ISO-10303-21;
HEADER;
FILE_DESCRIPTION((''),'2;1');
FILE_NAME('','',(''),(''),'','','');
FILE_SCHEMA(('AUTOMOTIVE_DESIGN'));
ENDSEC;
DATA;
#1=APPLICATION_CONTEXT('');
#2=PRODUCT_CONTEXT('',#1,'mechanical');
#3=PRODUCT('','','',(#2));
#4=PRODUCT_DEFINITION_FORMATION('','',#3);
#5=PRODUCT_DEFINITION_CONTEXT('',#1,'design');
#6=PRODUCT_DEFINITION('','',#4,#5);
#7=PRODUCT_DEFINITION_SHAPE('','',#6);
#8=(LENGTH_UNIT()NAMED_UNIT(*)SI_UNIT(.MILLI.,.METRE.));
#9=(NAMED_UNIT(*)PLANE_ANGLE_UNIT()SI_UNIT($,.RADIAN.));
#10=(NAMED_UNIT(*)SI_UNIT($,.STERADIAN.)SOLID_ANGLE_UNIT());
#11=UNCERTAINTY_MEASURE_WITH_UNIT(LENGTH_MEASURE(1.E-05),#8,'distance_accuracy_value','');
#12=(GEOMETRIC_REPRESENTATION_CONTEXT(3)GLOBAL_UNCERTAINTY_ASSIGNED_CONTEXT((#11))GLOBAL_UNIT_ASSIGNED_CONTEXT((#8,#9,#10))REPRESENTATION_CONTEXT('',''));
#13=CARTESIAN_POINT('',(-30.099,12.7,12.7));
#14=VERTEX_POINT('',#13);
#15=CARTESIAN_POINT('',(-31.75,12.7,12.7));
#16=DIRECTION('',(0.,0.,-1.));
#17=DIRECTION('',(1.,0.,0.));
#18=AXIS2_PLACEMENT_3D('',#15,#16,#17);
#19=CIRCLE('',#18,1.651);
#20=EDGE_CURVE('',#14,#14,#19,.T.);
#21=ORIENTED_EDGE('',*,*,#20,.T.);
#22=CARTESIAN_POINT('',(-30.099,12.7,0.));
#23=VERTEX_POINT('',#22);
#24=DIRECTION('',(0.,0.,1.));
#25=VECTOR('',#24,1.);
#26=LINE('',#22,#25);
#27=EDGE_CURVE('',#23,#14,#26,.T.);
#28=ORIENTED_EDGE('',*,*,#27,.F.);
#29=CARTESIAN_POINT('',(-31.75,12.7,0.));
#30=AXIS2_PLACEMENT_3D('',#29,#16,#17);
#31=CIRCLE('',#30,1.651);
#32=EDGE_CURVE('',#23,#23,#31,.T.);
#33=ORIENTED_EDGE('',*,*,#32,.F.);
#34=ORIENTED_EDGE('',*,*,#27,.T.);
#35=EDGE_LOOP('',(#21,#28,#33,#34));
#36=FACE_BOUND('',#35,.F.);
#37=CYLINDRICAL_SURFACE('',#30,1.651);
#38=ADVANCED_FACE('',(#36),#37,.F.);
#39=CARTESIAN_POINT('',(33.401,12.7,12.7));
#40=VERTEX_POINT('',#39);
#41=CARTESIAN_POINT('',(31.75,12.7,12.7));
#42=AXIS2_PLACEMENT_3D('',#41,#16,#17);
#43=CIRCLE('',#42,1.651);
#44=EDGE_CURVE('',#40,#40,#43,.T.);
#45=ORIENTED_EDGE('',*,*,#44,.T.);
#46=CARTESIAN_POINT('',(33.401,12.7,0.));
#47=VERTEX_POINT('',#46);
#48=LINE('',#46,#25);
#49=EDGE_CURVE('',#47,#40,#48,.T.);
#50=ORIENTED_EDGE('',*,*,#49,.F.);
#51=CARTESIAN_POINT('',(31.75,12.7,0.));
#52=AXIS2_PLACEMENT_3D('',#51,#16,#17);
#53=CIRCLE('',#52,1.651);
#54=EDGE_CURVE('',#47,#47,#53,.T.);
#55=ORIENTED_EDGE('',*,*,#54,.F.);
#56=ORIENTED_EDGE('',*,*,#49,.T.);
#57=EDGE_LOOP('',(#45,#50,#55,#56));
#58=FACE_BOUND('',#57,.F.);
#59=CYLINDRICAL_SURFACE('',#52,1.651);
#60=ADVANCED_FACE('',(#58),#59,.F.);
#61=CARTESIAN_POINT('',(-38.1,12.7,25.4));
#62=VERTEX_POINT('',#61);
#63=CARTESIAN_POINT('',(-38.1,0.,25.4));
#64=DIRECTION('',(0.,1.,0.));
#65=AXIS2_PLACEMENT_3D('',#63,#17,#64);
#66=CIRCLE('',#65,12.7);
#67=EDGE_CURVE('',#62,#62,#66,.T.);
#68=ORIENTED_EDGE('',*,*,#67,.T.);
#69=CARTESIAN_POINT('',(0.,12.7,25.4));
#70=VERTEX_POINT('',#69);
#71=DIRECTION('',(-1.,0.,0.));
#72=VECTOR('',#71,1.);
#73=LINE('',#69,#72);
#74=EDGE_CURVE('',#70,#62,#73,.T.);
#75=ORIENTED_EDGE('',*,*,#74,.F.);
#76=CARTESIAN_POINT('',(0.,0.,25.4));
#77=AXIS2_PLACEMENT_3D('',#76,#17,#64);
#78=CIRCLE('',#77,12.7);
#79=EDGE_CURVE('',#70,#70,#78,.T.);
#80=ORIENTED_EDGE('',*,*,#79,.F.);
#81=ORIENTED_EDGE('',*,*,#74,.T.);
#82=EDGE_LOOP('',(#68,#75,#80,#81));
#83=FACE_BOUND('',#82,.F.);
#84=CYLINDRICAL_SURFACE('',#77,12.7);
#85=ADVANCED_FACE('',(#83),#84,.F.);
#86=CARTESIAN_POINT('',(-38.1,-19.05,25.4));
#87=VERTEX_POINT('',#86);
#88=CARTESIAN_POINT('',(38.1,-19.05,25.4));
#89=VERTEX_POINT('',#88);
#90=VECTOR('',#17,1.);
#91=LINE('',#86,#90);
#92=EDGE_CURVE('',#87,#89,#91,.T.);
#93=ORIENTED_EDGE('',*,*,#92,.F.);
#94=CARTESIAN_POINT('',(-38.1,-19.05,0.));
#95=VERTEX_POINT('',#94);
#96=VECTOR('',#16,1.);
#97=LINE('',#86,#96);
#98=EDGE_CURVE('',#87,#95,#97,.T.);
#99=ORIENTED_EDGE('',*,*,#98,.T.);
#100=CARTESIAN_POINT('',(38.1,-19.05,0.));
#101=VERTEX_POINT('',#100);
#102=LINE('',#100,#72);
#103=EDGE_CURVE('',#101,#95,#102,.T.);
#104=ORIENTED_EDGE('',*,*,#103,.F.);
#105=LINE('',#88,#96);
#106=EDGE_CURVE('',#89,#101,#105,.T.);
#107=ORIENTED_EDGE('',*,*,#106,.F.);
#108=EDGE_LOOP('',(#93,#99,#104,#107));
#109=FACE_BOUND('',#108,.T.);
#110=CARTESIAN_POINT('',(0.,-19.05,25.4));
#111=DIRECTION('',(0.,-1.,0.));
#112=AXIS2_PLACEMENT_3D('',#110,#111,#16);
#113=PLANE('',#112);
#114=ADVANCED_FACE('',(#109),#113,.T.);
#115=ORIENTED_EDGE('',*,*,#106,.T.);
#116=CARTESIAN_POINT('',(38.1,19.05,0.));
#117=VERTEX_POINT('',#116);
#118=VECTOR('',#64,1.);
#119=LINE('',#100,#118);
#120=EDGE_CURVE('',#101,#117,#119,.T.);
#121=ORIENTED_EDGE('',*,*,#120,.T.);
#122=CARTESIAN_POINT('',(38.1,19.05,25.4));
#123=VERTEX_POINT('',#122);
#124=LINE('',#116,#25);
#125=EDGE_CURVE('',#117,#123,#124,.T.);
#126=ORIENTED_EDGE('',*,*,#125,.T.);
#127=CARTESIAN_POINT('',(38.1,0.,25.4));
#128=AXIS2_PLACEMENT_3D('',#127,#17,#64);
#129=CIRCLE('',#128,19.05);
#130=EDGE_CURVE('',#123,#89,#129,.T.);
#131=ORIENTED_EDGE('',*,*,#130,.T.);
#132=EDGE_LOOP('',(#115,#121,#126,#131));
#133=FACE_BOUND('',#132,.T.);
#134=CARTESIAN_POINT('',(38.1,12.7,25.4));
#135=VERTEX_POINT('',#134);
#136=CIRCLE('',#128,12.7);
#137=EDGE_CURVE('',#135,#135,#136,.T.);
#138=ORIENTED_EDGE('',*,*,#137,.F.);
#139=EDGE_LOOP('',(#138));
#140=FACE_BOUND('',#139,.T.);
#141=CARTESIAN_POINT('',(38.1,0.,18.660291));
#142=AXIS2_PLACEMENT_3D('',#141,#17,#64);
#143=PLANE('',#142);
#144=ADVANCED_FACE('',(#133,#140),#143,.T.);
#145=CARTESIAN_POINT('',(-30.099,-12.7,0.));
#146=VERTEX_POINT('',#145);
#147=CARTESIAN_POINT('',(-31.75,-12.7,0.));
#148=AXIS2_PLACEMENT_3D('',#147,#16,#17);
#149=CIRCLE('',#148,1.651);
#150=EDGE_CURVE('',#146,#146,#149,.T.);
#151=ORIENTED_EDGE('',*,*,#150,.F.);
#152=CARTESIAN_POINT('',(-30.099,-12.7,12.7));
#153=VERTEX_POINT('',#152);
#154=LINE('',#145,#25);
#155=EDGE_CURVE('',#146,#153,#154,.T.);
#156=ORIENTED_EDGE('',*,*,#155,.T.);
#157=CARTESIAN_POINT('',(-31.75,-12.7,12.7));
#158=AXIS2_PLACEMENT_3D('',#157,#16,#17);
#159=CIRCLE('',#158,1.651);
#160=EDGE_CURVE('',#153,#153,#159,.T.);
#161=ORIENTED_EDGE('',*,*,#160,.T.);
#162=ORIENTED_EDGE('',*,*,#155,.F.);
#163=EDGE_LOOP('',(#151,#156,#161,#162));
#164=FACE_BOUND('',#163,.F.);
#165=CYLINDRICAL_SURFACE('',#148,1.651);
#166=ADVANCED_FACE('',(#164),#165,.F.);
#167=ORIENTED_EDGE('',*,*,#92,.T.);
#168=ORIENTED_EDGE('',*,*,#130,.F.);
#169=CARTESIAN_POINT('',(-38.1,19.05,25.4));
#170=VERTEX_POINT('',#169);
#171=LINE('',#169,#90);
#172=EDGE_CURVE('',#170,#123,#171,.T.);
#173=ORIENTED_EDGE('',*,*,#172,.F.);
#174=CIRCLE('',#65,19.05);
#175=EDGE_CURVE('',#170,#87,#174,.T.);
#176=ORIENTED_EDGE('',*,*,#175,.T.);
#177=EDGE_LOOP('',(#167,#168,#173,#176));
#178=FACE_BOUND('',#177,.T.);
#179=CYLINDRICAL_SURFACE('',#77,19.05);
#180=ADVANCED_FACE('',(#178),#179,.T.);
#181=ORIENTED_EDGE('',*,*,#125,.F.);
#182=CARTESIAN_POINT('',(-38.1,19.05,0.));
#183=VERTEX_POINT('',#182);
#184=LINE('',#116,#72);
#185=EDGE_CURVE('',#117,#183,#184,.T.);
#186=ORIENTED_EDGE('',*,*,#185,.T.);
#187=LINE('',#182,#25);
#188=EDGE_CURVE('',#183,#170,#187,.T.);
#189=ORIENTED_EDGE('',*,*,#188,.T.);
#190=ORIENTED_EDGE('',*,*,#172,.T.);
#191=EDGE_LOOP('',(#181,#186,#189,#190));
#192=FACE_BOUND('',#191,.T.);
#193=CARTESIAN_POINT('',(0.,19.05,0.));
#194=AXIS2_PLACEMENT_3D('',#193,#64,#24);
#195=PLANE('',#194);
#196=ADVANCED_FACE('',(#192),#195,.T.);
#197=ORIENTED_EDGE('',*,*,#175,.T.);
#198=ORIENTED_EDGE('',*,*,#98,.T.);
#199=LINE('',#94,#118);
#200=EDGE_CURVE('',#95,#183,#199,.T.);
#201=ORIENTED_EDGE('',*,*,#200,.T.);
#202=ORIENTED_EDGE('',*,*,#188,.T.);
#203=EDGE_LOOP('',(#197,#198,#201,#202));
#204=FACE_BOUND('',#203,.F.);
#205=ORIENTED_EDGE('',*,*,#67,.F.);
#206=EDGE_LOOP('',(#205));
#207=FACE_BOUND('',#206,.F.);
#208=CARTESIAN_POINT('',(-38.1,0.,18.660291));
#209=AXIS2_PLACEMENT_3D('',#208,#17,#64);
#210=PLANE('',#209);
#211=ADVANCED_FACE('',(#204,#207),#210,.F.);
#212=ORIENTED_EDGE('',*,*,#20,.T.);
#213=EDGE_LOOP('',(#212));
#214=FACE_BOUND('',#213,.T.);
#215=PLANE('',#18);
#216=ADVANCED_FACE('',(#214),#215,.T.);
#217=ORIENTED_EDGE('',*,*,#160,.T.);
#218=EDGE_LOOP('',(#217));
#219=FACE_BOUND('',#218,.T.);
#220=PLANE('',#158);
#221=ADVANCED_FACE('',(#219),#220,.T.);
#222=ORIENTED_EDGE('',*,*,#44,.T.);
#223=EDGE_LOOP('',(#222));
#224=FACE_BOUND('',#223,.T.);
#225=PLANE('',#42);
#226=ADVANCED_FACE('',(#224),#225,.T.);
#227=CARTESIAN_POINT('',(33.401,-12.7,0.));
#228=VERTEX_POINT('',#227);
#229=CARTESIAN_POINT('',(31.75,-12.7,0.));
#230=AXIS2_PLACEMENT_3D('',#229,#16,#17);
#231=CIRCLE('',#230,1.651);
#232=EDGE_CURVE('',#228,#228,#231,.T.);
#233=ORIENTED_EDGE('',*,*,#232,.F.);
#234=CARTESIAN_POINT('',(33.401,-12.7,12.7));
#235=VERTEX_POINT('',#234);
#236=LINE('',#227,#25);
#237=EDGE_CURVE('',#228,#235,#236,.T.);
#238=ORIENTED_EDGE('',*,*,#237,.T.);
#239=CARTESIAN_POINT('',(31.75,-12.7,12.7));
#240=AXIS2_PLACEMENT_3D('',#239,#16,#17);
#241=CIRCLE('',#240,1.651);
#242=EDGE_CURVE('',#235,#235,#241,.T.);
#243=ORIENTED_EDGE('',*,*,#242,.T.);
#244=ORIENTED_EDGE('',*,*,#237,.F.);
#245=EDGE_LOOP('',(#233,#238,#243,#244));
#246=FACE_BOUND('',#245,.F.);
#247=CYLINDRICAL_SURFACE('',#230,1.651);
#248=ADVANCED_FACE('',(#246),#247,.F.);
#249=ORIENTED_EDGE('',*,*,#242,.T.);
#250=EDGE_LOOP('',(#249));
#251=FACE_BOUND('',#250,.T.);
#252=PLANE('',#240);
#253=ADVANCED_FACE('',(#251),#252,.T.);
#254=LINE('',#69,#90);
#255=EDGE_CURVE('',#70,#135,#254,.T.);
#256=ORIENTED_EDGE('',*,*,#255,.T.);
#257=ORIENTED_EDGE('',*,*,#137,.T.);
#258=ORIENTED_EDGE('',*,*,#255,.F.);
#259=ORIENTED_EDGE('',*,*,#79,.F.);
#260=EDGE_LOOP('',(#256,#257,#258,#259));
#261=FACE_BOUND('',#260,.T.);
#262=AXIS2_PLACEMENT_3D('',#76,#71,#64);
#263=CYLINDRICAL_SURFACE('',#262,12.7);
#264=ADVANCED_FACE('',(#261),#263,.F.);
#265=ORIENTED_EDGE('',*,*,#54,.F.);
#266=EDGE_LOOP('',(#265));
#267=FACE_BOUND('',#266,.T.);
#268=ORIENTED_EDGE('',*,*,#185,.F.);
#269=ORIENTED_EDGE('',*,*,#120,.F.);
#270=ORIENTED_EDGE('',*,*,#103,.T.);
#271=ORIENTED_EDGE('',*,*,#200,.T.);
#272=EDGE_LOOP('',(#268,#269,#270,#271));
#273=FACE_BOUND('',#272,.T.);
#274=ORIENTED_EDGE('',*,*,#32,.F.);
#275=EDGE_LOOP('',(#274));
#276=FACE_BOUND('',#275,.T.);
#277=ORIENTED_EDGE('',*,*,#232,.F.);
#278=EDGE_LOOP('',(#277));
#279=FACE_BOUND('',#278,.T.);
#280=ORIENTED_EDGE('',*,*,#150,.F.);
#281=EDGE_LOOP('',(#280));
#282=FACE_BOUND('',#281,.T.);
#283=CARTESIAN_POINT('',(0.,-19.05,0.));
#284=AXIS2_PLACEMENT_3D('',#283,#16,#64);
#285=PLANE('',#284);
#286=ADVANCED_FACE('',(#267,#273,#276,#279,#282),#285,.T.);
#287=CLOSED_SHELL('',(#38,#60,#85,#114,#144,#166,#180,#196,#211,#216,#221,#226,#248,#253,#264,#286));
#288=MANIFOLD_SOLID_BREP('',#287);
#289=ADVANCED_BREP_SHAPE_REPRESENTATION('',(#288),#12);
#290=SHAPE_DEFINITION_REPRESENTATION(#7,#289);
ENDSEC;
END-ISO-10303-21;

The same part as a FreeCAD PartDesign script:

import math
import FreeCAD as App
import Part
import Sketcher
from FreeCAD import Vector
Q = App.Units.Quantity

doc = App.newDocument("Part")
body = doc.addObject("PartDesign::Body", "Body")

sketch1 = body.newObject("Sketcher::SketchObject", "Sketch")
sketch1.AttachmentSupport = (doc.getObject("YZ_Plane"), [""])
sketch1.MapMode = "FlatFace"
sketch1.addGeometry([
    Part.LineSegment(Vector(19, 0, 0), Vector(19, 25, 0)),
    Part.ArcOfCircle(Part.Circle(Vector(0, 25, 0), Vector(0, 0, 1), 19), math.radians(0), math.radians(180)),
    Part.LineSegment(Vector(-19, 25, 0), Vector(-19, 0, 0)),
    Part.LineSegment(Vector(-19, 0, 0), Vector(19, 0, 0)),
    Part.Circle(Vector(0, 25, 0), Vector(0, 0, 1), 13),
], False)
sketch1.addConstraint([
    Sketcher.Constraint("Tangent", 0, 2, 1, 1),
    Sketcher.Constraint("Tangent", 1, 2, 2, 1),
    Sketcher.Constraint("Coincident", 2, 2, 3, 1),
    Sketcher.Constraint("Coincident", 3, 2, 0, 1),
    Sketcher.Constraint("Vertical", 0),
    Sketcher.Constraint("Vertical", 2),
    Sketcher.Constraint("Horizontal", 3),
    Sketcher.Constraint("Coincident", 4, 3, 1, 3),
    Sketcher.Constraint("Symmetric", 2, 2, 3, 2, -1, 1),
    Sketcher.Constraint("Diameter", 4, Q("1 in")),
    Sketcher.Constraint("DistanceY", 0, 1, 0, 2, Q("1 in")),
    Sketcher.Constraint("Radius", 1, Q("0.75 in")),
])
pad1 = body.newObject("PartDesign::Pad", "Pad")
pad1.Profile = sketch1
pad1.Type = "TwoLengths"
pad1.Length = Q("1.5 in")
pad1.Length2 = Q("1.5 in")

sketch2 = body.newObject("Sketcher::SketchObject", "Sketch001")
sketch2.AttachmentSupport = (doc.getObject("XY_Plane"), [""])
sketch2.MapMode = "FlatFace"
sketch2.addGeometry([
    Part.Circle(Vector(-31.8, -12.7, 0), Vector(0, 0, 1), 1.7),
    Part.Circle(Vector(-31.8, 12.7, 0), Vector(0, 0, 1), 1.7),
    Part.Circle(Vector(31.8, -12.7, 0), Vector(0, 0, 1), 1.7),
    Part.Circle(Vector(31.8, 12.7, 0), Vector(0, 0, 1), 1.7),
], False)
sketch2.addConstraint([
    Sketcher.Constraint("Equal", 0, 1),
    Sketcher.Constraint("Equal", 1, 2),
    Sketcher.Constraint("Equal", 2, 3),
    Sketcher.Constraint("Symmetric", 1, 3, 2, 3, -1, 1),
    Sketcher.Constraint("Symmetric", 0, 3, 3, 3, -1, 1),
    Sketcher.Constraint("Symmetric", 0, 3, 2, 3, -2),
    Sketcher.Constraint("Diameter", 0, Q("0.13 in")),
    Sketcher.Constraint("DistanceY", 0, 3, 1, 3, Q("1 in")),
    Sketcher.Constraint("DistanceX", 0, 3, 2, 3, Q("2.5 in")),
])
pocket1 = body.newObject("PartDesign::Pocket", "Pocket")
pocket1.Profile = sketch2
pocket1.Length = Q("0.5 in")
pocket1.Reversed = True

doc.recompute()
